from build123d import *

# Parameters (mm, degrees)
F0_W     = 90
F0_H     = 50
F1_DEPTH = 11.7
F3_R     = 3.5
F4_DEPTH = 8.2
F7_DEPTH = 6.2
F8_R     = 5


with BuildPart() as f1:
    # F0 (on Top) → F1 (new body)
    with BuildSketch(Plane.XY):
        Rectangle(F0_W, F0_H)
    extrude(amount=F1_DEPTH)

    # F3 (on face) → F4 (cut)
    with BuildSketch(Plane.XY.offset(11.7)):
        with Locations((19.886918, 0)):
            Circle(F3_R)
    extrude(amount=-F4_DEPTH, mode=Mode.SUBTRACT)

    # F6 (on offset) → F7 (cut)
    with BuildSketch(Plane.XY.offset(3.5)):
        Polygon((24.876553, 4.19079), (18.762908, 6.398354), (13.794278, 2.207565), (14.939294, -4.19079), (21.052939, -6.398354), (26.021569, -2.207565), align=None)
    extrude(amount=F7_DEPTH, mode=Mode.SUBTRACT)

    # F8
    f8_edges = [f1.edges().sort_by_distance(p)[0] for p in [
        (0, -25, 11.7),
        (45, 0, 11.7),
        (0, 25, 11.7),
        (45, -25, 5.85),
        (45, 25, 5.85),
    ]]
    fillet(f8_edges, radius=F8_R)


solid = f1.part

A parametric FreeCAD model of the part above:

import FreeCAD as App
import Part
import Sketcher
from FreeCAD import Vector
Q = App.Units.Quantity


def edges_at(feature, points):
    """Names of the edges that pass closest to the given points."""
    edges = feature.Shape.Edges
    near = lambda p: min(range(len(edges)), key=lambda i: edges[i].distToShape(Part.Vertex(*p))[0])
    return sorted({f"Edge{near(p) + 1}" for p in points})


def add_polygon(sketch, points):
    """Adds a closed chain of lines whose ends are joined by coincident constraints."""
    first, n = sketch.GeometryCount, len(points)
    for a, b in zip(points, points[1:] + points[:1]):
        sketch.addGeometry(Part.LineSegment(App.Vector(*a, 0), App.Vector(*b, 0)), False)
    for i in range(n):
        sketch.addConstraint(Sketcher.Constraint("Coincident", first + i, 2, first + (i + 1) % n, 1))

doc = App.newDocument("Part")
body = doc.addObject("PartDesign::Body", "Body")

sketch1 = doc.addObject("Sketcher::SketchObject", "Sketch")
body.addObject(sketch1)
sketch1.AttachmentSupport = (doc.XY_Plane, [""])
sketch1.MapMode = "FlatFace"
add_polygon(sketch1, [(-45, 25), (-45, -25), (45, -25), (45, 25)])
sketch1.addConstraint(Sketcher.Constraint("Vertical", 0))
sketch1.addConstraint(Sketcher.Constraint("Horizontal", 1))
sketch1.addConstraint(Sketcher.Constraint("Vertical", 2))
sketch1.addConstraint(Sketcher.Constraint("Horizontal", 3))
sketch1.addConstraint(Sketcher.Constraint("Symmetric", 0, 2, 2, 2, -1, 1))
sketch1.addConstraint(Sketcher.Constraint("DistanceX", 1, 1, 1, 2, Q("90 mm")))
sketch1.addConstraint(Sketcher.Constraint("DistanceY", 0, 2, 0, 1, Q("50 mm")))
pad1 = doc.addObject("PartDesign::Pad", "Pad")
body.addObject(pad1)
pad1.Profile = sketch1
pad1.Length = 11.7

sketch2 = doc.addObject("Sketcher::SketchObject", "Sketch001")
body.addObject(sketch2)
sketch2.AttachmentSupport = (doc.XY_Plane, [""])
sketch2.MapMode = "FlatFace"
sketch2.AttachmentOffset = App.Placement(Vector(0, 0, 11.7), App.Rotation())
sketch2.addGeometry(Part.Circle(Vector(19.9, 0, 0), Vector(0, 0, 1), 3.5), False)
sketch2.addConstraint(Sketcher.Constraint("PointOnObject", 0, 3, -1))
sketch2.addConstraint(Sketcher.Constraint("Diameter", 0, Q("7 mm")))
sketch2.addConstraint(Sketcher.Constraint("DistanceX", -1, 1, 0, 3, Q("19.886918 mm")))
pocket1 = doc.addObject("PartDesign::Pocket", "Pocket")
body.addObject(pocket1)
pocket1.Profile = sketch2
pocket1.Length = 8.2

sketch3 = doc.addObject("Sketcher::SketchObject", "Sketch002")
body.addObject(sketch3)
sketch3.AttachmentSupport = (doc.XY_Plane, [""])
sketch3.MapMode = "FlatFace"
sketch3.AttachmentOffset = App.Placement(Vector(0, 0, 3.5), App.Rotation())
add_polygon(sketch3, [(25, 4), (19, 6), (14, 2), (15, -4), (21, -6), (26, -2)])
sketch3.addConstraint(Sketcher.Constraint("Parallel", 0, 3))
sketch3.addConstraint(Sketcher.Constraint("Parallel", 1, 4))
sketch3.addConstraint(Sketcher.Constraint("Parallel", 2, 5))
sketch3.addConstraint(Sketcher.Constraint("Equal", 0, 1))
sketch3.addConstraint(Sketcher.Constraint("Equal", 1, 2))
sketch3.addConstraint(Sketcher.Constraint("Equal", 2, 3))
sketch3.addConstraint(Sketcher.Constraint("Distance", 0, Q("6.5 mm")))
sketch3.addConstraint(Sketcher.Constraint("DistanceY", 2, 2, -1, 1, Q("4.19079 mm")))
sketch3.addConstraint(Sketcher.Constraint("DistanceX", -1, 1, 3, 2, Q("21.052939 mm")))
sketch3.addConstraint(Sketcher.Constraint("DistanceX", -1, 1, 4, 2, Q("26.021569 mm")))
sketch3.addConstraint(Sketcher.Constraint("DistanceY", -1, 1, 5, 2, Q("4.19079 mm")))
sketch3.addConstraint(Sketcher.Constraint("DistanceX", 1, 2, 3, 2, Q("7.258661 mm")))
pocket2 = doc.addObject("PartDesign::Pocket", "Pocket001")
body.addObject(pocket2)
pocket2.Profile = sketch3
pocket2.Length = 6.2
pocket2.Reversed = True
doc.recompute()

fillet = doc.addObject("PartDesign::Fillet", "Fillet")
body.addObject(fillet)
fillet.Base = (pocket2, edges_at(pocket2, [
    (0, -25, 11.7),
    (45, 0, 11.7),
    (0, 25, 11.7),
    (45, -25, 5.85),
    (45, 25, 5.85),
]))
fillet.Radius = 5

doc.recompute()
